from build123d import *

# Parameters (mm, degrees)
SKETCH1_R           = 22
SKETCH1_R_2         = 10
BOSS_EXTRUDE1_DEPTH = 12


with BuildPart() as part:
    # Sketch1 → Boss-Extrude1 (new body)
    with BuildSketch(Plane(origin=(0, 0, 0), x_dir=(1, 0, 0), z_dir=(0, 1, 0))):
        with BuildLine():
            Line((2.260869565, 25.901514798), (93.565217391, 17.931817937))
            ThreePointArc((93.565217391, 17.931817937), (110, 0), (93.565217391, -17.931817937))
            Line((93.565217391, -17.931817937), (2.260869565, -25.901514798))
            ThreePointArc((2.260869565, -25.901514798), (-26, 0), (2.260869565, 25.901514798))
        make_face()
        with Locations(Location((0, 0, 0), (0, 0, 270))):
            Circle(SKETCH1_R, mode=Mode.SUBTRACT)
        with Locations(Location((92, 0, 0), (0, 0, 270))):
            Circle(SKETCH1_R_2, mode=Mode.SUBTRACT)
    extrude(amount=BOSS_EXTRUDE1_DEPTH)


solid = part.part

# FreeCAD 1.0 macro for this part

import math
import FreeCAD as App
import Part
import Sketcher

doc = App.newDocument("Part")
params = doc.addObject("Spreadsheet::Sheet", "Params")
for row, (alias, value) in enumerate([
    ("sketch1_diameter", "20 mm"),
    ("sketch1_diameter2", "44 mm"),
    ("sketch1_radius", "26 mm"),
    ("sketch1_radius2", "18 mm"),
    ("pad1_length", "12 mm"),
], start=1):
    params.set(f"A{row}", alias)
    params.set(f"B{row}", "=" + value)
    params.setAlias(f"B{row}", alias)

body = doc.addObject("PartDesign::Body", "Body")

# Sketch on XZ plane
sketch1 = body.newObject("Sketcher::SketchObject", "Sketch")
sketch1.AttachmentSupport = (doc.getObject("XZ_Plane"), [""])
sketch1.MapMode = "FlatFace"
sketch1.addGeometry([
    Part.LineSegment(App.Vector(93.565217, -17.931818, 0), App.Vector(2.26087, -25.901515, 0)),  # 0
    Part.ArcOfCircle(Part.Circle(App.Vector(0, 0, 0), App.Vector(0, 0, 1), 26), math.radians(85.011458), math.radians(274.988542)),  # 1
    Part.LineSegment(App.Vector(2.26087, 25.901515, 0), App.Vector(93.565217, 17.931818, 0)),  # 2
    Part.ArcOfCircle(Part.Circle(App.Vector(92, 0, 0), App.Vector(0, 0, 1), 18), math.radians(-85.011458), math.radians(85.011458)),  # 3
    Part.Circle(App.Vector(92, 0, 0), App.Vector(0, 0, 1), 10),  # 4
    Part.Circle(App.Vector(0, 0, 0), App.Vector(0, 0, 1), 22),  # 5
], False)
sketch1.addConstraint([
    Sketcher.Constraint("Tangent", 0, 2, 1, 2),
    Sketcher.Constraint("Tangent", 1, 1, 2, 1),
    Sketcher.Constraint("Tangent", 2, 2, 3, 2),
    Sketcher.Constraint("Tangent", 3, 1, 0, 1),
    Sketcher.Constraint("Coincident", 1, 3, -1, 1),
    Sketcher.Constraint("Coincident", 5, 3, -1, 1),
    Sketcher.Constraint("Coincident", 4, 3, 3, 3),
    Sketcher.Constraint("PointOnObject", 3, 3, -1),
    Sketcher.Constraint("Diameter", 4, 20.0),
    Sketcher.Constraint("Diameter", 5, 44.0),
    Sketcher.Constraint("Radius", 1, 26.0),
    Sketcher.Constraint("Radius", 3, 18.0),
    Sketcher.Constraint("DistanceX", -1, 1, 3, 3, 92.0),
])
sketch1.setExpression("Constraints[8]", "Params.sketch1_diameter")
sketch1.setExpression("Constraints[9]", "Params.sketch1_diameter2")
sketch1.setExpression("Constraints[10]", "Params.sketch1_radius")
sketch1.setExpression("Constraints[11]", "Params.sketch1_radius2")
pad1 = body.newObject("PartDesign::Pad", "Pad")
pad1.Profile = sketch1
pad1.setExpression("Length", "Params.pad1_length")
pad1.Reversed = True

doc.recompute()
